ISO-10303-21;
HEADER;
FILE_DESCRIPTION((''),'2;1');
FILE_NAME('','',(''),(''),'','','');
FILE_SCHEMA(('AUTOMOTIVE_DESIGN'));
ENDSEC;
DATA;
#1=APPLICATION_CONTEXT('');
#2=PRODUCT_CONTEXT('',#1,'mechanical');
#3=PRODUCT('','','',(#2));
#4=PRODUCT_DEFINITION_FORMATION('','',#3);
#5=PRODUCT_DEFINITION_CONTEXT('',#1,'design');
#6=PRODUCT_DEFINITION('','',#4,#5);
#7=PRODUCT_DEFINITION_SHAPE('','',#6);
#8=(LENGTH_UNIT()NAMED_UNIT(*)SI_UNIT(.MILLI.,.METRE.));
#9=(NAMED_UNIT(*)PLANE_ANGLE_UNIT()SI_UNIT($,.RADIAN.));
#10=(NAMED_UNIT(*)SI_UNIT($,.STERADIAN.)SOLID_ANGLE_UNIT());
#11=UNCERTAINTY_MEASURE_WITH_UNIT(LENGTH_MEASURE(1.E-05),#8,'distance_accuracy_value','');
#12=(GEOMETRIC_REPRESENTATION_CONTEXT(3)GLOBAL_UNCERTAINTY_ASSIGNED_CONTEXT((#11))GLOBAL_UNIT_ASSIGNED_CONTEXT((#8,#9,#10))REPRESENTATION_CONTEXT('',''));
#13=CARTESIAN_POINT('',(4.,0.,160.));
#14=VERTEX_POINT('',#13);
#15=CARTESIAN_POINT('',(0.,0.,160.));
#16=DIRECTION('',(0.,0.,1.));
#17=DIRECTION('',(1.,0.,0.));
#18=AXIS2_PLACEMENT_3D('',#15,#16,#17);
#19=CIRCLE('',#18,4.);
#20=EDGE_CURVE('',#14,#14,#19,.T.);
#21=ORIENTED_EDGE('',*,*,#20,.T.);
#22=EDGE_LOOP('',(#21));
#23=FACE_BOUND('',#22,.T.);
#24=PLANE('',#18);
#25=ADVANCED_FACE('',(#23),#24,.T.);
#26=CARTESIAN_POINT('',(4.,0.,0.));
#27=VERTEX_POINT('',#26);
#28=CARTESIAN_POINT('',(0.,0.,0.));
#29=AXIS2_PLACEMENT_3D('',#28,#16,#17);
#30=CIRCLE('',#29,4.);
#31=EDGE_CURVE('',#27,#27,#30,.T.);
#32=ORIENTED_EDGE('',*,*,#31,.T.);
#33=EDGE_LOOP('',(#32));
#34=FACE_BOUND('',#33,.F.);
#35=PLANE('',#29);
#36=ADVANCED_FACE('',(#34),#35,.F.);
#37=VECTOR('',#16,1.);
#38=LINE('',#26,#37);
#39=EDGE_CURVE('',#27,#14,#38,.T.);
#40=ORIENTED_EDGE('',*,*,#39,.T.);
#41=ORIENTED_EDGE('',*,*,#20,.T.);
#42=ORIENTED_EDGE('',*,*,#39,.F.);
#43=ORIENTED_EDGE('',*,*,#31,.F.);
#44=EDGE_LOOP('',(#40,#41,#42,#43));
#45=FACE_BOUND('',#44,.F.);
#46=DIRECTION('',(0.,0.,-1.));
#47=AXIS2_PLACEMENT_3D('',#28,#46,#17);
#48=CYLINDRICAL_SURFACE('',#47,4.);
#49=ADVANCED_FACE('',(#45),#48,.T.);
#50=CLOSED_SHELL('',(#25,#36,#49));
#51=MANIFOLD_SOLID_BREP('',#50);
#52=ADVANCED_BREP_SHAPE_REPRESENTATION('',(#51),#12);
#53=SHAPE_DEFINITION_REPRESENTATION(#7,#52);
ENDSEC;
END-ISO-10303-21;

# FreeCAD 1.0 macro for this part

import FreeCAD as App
import Part
import Sketcher

V = App.Vector
Q = App.Units.Quantity

doc = App.newDocument("Part")
body = doc.addObject("PartDesign::Body", "Body")

# Sketch on XY plane
sketch1 = doc.addObject("Sketcher::SketchObject", "Sketch")
body.addObject(sketch1)
sketch1.AttachmentSupport = (doc.XY_Plane, [""])
sketch1.MapMode = "FlatFace"
sketch1.addGeometry(Part.Circle(V(0, 0, 0), V(0, 0, 1), 4), False)
sketch1.addConstraint(Sketcher.Constraint("Coincident", 0, 3, -1, 1))
sketch1.addConstraint(Sketcher.Constraint("Diameter", 0, Q("8 mm")))
pad1 = doc.addObject("PartDesign::Pad", "Pad")
body.addObject(pad1)
pad1.Profile = sketch1
pad1.Length = 160

doc.recompute()
